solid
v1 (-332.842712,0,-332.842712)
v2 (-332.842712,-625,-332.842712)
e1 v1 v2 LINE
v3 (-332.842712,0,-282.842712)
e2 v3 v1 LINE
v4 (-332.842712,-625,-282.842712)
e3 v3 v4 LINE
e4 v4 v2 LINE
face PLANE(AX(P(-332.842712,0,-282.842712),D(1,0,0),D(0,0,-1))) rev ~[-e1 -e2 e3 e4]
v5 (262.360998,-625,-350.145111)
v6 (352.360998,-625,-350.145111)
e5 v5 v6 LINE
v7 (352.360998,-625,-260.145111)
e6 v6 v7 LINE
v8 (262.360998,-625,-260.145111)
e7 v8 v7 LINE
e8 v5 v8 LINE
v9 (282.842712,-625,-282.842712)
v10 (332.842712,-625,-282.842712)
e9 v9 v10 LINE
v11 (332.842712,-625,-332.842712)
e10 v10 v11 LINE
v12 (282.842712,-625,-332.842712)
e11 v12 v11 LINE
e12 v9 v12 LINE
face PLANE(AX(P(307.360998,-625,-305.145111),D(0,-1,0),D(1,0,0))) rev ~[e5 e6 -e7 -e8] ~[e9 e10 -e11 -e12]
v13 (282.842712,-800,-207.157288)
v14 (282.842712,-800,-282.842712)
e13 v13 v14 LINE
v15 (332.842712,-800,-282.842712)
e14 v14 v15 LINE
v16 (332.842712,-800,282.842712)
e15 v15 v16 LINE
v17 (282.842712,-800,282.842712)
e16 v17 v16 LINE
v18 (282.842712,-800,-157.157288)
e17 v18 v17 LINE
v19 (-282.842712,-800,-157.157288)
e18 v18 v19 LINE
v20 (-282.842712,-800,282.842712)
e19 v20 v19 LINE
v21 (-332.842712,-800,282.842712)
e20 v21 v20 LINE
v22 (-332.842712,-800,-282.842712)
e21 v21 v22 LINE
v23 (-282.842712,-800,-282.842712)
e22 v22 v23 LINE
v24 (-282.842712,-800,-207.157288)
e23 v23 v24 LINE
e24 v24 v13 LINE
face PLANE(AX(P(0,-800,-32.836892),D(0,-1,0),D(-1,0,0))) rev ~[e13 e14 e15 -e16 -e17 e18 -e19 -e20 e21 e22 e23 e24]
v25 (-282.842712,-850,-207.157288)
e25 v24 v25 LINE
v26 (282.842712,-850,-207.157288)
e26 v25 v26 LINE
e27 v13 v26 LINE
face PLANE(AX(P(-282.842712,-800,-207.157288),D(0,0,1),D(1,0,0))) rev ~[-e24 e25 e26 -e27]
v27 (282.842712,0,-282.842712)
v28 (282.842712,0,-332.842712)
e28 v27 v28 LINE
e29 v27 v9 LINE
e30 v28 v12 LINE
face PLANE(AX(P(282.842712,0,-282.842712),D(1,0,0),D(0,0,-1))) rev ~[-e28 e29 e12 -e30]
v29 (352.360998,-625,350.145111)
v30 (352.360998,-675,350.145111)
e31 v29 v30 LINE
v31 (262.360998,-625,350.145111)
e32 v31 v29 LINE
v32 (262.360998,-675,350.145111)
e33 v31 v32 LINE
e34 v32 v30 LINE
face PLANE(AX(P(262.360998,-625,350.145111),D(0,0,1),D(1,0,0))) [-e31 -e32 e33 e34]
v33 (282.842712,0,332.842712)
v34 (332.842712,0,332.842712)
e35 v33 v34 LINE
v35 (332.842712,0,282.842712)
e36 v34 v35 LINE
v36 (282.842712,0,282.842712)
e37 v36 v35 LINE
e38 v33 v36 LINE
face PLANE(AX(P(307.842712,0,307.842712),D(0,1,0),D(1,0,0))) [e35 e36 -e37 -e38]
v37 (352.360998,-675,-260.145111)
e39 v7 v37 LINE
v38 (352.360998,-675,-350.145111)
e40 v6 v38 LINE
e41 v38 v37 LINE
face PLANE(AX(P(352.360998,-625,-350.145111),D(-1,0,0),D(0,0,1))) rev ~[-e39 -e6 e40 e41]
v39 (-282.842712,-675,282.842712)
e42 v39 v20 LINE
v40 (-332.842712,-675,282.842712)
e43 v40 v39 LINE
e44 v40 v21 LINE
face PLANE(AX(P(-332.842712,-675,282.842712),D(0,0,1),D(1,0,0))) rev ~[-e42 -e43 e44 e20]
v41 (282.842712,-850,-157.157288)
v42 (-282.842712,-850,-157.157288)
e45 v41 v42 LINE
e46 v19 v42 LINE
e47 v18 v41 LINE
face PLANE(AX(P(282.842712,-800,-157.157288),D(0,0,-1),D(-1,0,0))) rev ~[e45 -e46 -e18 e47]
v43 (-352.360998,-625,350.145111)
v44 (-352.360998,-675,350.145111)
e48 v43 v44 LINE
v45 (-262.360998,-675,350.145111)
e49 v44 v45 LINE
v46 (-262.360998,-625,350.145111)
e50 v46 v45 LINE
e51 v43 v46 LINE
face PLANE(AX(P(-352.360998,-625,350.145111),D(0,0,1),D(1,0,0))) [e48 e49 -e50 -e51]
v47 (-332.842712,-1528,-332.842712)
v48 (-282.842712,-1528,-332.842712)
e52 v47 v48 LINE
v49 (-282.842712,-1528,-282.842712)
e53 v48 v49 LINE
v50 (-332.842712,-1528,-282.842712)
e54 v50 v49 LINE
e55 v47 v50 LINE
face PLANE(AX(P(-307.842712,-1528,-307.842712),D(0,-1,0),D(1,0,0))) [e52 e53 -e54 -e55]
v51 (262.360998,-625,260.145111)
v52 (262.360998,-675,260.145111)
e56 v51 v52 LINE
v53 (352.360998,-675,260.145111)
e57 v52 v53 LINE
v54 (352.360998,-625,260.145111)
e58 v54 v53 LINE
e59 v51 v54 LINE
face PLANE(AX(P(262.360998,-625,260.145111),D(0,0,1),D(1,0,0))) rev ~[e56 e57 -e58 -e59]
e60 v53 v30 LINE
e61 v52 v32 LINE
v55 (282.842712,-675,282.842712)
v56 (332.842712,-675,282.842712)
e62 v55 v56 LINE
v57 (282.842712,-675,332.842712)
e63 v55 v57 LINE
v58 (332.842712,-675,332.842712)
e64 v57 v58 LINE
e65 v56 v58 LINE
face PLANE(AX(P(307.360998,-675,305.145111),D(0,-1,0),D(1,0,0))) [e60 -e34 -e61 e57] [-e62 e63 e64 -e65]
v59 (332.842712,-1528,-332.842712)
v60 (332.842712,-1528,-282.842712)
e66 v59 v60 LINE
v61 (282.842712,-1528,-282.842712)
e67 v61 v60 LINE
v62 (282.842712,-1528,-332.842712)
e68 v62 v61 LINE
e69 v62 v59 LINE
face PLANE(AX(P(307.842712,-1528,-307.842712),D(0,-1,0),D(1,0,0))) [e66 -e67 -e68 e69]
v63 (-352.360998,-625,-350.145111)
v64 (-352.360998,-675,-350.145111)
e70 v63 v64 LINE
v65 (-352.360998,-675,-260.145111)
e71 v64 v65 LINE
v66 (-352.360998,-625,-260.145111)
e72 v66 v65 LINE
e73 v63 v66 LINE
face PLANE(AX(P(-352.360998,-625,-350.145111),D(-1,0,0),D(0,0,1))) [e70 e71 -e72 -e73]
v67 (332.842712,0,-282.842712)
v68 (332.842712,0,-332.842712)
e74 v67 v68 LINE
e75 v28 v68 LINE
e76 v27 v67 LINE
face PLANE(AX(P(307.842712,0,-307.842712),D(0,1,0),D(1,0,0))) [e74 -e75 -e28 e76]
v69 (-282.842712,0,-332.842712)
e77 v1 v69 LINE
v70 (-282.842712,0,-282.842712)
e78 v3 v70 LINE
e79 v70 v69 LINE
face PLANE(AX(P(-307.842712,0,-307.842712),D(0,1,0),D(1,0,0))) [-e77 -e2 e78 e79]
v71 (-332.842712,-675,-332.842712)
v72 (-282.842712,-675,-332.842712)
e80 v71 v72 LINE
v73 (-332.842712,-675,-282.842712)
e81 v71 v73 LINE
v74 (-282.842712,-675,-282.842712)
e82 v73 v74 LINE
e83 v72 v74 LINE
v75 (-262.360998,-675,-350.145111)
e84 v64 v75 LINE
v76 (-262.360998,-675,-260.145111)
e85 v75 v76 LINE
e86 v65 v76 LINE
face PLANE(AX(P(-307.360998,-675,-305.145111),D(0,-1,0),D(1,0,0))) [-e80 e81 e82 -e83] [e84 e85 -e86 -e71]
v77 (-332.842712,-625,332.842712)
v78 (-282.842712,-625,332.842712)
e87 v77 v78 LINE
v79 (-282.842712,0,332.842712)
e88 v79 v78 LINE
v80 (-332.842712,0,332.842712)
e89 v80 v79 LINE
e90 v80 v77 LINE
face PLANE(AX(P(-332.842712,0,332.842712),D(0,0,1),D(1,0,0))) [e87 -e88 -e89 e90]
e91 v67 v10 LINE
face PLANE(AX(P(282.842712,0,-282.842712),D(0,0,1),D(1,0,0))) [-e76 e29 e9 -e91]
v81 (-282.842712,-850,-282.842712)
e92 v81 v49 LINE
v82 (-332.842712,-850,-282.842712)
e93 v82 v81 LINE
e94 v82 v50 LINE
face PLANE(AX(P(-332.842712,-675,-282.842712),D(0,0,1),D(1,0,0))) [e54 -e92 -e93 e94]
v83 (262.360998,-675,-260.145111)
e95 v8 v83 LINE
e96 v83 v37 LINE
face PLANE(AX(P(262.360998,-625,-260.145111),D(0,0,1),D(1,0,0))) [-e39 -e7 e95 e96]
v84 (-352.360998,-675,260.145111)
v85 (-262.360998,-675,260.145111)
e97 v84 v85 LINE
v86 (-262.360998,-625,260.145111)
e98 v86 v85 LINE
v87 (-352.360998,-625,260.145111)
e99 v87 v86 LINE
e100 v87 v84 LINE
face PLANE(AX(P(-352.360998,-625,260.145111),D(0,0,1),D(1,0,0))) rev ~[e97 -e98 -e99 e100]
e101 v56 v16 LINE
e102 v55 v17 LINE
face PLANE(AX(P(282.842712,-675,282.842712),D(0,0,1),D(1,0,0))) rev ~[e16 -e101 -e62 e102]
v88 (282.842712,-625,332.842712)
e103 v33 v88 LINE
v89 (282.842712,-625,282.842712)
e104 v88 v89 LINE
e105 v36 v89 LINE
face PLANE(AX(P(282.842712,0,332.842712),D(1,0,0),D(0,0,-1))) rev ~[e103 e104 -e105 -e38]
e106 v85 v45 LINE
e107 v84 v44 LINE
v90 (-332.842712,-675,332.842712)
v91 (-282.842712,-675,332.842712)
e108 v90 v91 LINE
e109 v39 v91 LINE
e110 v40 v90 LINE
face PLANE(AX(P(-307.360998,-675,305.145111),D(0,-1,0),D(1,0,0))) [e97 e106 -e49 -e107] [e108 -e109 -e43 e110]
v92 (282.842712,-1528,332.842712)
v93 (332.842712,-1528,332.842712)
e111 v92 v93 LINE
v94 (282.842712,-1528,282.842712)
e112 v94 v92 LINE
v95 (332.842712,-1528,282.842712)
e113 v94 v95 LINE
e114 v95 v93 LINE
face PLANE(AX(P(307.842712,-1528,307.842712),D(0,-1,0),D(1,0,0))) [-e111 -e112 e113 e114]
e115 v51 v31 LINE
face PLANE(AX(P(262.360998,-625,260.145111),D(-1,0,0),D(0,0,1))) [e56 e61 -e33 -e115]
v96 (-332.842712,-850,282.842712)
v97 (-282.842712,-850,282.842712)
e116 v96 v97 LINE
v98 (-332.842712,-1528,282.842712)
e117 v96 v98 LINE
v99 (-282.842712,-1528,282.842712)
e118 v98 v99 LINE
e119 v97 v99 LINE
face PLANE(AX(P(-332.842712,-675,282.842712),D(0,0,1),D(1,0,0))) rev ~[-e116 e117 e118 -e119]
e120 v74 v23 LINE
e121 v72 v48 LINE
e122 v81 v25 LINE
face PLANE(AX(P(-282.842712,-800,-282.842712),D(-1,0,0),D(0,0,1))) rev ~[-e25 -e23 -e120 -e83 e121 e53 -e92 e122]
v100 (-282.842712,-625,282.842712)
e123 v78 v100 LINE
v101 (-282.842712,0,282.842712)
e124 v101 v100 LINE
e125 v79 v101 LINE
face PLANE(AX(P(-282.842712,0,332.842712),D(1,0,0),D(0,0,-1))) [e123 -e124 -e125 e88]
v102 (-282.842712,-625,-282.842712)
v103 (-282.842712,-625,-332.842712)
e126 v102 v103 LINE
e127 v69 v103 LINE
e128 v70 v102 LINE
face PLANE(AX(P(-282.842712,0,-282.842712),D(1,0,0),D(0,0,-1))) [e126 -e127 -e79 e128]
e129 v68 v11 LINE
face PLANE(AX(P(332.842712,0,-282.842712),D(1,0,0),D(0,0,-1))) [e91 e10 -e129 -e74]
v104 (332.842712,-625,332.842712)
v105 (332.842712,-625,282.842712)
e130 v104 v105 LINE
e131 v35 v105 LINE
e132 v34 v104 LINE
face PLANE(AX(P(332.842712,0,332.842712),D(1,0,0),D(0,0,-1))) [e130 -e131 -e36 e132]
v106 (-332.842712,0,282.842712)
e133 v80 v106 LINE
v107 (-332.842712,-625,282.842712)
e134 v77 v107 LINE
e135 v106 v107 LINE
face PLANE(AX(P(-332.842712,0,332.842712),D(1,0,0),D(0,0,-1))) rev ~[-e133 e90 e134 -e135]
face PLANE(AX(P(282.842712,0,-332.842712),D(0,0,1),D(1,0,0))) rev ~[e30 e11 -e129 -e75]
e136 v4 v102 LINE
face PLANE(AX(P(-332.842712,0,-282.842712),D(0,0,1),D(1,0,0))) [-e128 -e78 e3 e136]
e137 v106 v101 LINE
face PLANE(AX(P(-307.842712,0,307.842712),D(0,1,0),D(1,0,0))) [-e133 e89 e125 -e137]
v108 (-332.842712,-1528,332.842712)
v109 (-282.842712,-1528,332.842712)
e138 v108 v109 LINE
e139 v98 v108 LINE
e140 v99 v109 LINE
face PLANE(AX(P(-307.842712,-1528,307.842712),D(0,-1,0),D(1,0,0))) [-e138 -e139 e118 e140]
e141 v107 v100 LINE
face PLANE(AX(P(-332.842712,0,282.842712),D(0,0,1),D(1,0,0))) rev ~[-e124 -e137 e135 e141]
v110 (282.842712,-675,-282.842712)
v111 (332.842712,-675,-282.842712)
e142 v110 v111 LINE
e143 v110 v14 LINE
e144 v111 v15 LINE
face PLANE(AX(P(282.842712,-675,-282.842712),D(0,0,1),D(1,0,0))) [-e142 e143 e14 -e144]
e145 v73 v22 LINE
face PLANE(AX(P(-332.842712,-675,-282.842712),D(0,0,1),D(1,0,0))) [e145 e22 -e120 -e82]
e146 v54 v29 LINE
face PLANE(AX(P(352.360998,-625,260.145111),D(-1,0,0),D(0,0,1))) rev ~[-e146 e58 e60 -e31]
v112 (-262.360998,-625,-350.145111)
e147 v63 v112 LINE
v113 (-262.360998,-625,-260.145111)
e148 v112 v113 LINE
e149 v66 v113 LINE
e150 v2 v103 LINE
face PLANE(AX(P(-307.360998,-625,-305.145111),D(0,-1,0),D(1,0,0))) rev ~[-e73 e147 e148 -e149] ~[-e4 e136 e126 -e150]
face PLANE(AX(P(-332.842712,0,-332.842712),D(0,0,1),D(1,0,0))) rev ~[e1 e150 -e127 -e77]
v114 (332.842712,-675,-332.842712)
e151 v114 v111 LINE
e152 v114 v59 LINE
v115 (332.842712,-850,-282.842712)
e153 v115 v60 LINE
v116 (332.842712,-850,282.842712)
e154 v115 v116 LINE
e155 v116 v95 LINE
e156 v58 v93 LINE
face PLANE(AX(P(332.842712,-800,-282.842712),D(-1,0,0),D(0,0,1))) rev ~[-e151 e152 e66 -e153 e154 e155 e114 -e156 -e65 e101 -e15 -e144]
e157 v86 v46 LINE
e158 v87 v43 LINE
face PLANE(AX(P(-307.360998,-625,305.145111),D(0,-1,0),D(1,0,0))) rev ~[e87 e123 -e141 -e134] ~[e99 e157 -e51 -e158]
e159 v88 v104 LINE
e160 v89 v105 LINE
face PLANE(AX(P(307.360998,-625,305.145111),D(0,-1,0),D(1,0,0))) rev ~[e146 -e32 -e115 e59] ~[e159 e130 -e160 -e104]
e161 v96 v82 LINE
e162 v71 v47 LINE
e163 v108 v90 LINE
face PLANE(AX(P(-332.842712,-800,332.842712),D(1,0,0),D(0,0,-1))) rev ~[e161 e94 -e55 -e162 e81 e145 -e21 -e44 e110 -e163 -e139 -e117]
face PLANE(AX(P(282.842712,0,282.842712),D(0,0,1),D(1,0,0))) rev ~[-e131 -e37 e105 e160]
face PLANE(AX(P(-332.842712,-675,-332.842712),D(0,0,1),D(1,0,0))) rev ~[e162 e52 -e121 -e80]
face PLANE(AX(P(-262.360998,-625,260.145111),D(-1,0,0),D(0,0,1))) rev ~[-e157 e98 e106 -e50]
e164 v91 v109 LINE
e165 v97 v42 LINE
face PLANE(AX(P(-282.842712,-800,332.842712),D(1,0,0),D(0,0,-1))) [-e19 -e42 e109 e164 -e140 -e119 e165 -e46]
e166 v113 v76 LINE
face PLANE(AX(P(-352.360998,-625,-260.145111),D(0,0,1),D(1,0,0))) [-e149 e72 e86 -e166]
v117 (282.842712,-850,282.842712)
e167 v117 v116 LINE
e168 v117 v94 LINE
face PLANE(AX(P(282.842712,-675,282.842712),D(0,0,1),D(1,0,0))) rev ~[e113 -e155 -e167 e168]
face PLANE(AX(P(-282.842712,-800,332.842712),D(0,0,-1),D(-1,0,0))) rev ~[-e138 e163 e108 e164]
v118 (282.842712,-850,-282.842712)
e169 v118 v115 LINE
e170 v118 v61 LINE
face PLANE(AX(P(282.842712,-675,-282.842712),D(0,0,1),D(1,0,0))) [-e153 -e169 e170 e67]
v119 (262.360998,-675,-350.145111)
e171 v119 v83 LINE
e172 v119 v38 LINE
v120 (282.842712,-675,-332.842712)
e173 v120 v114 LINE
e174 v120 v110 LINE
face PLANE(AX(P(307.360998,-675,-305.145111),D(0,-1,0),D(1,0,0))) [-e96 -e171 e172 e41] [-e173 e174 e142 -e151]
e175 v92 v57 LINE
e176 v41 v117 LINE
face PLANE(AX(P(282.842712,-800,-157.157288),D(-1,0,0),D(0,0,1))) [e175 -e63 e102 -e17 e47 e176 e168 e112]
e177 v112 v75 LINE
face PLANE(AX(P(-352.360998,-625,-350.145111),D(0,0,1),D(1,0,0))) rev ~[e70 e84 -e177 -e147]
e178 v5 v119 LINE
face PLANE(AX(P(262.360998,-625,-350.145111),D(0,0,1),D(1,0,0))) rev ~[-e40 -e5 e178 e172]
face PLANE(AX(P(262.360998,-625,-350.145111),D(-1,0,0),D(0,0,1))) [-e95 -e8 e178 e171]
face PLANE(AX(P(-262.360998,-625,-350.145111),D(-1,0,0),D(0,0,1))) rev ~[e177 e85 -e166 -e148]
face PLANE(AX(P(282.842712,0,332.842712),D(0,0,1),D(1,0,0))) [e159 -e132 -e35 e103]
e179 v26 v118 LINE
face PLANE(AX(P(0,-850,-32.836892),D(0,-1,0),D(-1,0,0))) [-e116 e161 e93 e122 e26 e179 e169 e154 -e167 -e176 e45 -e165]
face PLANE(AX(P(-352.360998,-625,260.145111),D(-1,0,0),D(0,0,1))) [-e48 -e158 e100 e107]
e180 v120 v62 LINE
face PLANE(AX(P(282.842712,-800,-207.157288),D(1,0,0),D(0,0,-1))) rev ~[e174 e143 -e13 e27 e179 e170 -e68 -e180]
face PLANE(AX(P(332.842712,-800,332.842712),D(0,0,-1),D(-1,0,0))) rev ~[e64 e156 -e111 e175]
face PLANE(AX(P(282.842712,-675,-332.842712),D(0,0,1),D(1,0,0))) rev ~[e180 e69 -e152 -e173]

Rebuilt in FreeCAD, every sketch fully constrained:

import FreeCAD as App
import Part
import Sketcher


def add_polygon(sketch, points):
    """Adds a closed chain of lines whose ends are joined by coincident constraints."""
    first, n = sketch.GeometryCount, len(points)
    for a, b in zip(points, points[1:] + points[:1]):
        sketch.addGeometry(Part.LineSegment(App.Vector(*a, 0), App.Vector(*b, 0)), False)
    for i in range(n):
        sketch.addConstraint(Sketcher.Constraint("Coincident", first + i, 2, first + (i + 1) % n, 1))

doc = App.newDocument("Part")
body = doc.addObject("PartDesign::Body", "Body")

sketch1 = body.newObject("Sketcher::SketchObject", "Sketch")
sketch1.AttachmentSupport = (doc.getObject("XZ_Plane"), [""])
sketch1.MapMode = "FlatFace"
add_polygon(sketch1, [(-333, -333), (-333, -283), (-283, -283), (-283, -333)])
sketch1.addConstraint([
    Sketcher.Constraint("Vertical", 0),
    Sketcher.Constraint("Horizontal", 1),
    Sketcher.Constraint("Vertical", 2),
    Sketcher.Constraint("Horizontal", 3),
    Sketcher.Constraint("Equal", 3, 0),
    Sketcher.Constraint("DistanceX", 1, 1, 1, 2, 50.0),
    Sketcher.Constraint("DistanceX", 0, 2, -1, 1, 332.842712),
    Sketcher.Constraint("DistanceY", 0, 2, -1, 1, 282.842712),
])
pad1 = body.newObject("PartDesign::Pad", "Pad")
pad1.Profile = sketch1
pad1.Length = 625
body2 = doc.addObject("PartDesign::Body", "Body001")

sketch2 = body2.newObject("Sketcher::SketchObject", "Sketch001")
sketch2.AttachmentSupport = (doc.getObject("XZ_Plane001"), [""])
sketch2.MapMode = "FlatFace"
add_polygon(sketch2, [(283, -333), (283, -283), (333, -283), (333, -333)])
sketch2.addConstraint([
    Sketcher.Constraint("Vertical", 0),
    Sketcher.Constraint("Horizontal", 1),
    Sketcher.Constraint("Vertical", 2),
    Sketcher.Constraint("Horizontal", 3),
    Sketcher.Constraint("Equal", 3, 0),
    Sketcher.Constraint("DistanceX", 1, 1, 1, 2, 50.0),
    Sketcher.Constraint("DistanceX", -1, 1, 0, 2, 282.842712),
    Sketcher.Constraint("DistanceY", 0, 2, -1, 1, 282.842712),
])
pad2 = body2.newObject("PartDesign::Pad", "Pad001")
pad2.Profile = sketch2
pad2.Length = 625
body3 = doc.addObject("PartDesign::Body", "Body002")

sketch3 = body3.newObject("Sketcher::SketchObject", "Sketch002")
sketch3.AttachmentSupport = (doc.getObject("XZ_Plane002"), [""])
sketch3.MapMode = "FlatFace"
add_polygon(sketch3, [(-333, 283), (-333, 333), (-283, 333), (-283, 283)])
sketch3.addConstraint([
    Sketcher.Constraint("Vertical", 0),
    Sketcher.Constraint("Horizontal", 1),
    Sketcher.Constraint("Vertical", 2),
    Sketcher.Constraint("Horizontal", 3),
    Sketcher.Constraint("Equal", 3, 0),
    Sketcher.Constraint("DistanceX", 1, 1, 1, 2, 50.0),
    Sketcher.Constraint("DistanceX", 0, 2, -1, 1, 332.842712),
    Sketcher.Constraint("DistanceY", -1, 1, 0, 2, 332.842712),
])
pad3 = body3.newObject("PartDesign::Pad", "Pad002")
pad3.Profile = sketch3
pad3.Length = 625
body4 = doc.addObject("PartDesign::Body", "Body003")

sketch4 = body4.newObject("Sketcher::SketchObject", "Sketch003")
sketch4.AttachmentSupport = (doc.getObject("XZ_Plane003"), [""])
sketch4.MapMode = "FlatFace"
add_polygon(sketch4, [(283, 283), (283, 333), (333, 333), (333, 283)])
sketch4.addConstraint([
    Sketcher.Constraint("Vertical", 0),
    Sketcher.Constraint("Horizontal", 1),
    Sketcher.Constraint("Vertical", 2),
    Sketcher.Constraint("Horizontal", 3),
    Sketcher.Constraint("Equal", 3, 0),
    Sketcher.Constraint("DistanceX", 1, 1, 1, 2, 50.0),
    Sketcher.Constraint("DistanceX", -1, 1, 0, 2, 282.842712),
    Sketcher.Constraint("DistanceY", -1, 1, 0, 2, 332.842712),
])
pad4 = body4.newObject("PartDesign::Pad", "Pad003")
pad4.Profile = sketch4
pad4.Length = 625
body.AllowCompound = True
doc.recompute()

boolean = body.newObject("PartDesign::Boolean", "Boolean")
boolean.Type = "Fuse"
boolean.addObjects([body2])
doc.recompute()

boolean2 = body.newObject("PartDesign::Boolean", "Boolean001")
boolean2.Type = "Fuse"
boolean2.addObjects([body3])
doc.recompute()

boolean3 = body.newObject("PartDesign::Boolean", "Boolean002")
boolean3.Type = "Fuse"
boolean3.addObjects([body4])

sketch5 = body.newObject("Sketcher::SketchObject", "Sketch004")
sketch5.AttachmentSupport = (doc.getObject("XZ_Plane"), [""])
sketch5.MapMode = "FlatFace"
sketch5.AttachmentOffset = App.Placement(App.Vector(0, 0, 625), App.Rotation())
add_polygon(sketch5, [(-352, 350), (-352, 260), (-262, 260), (-262, 350)])
add_polygon(sketch5, [(262, 350), (262, 260), (352, 260), (352, 350)])
add_polygon(sketch5, [(262, -260), (262, -350), (352, -350), (352, -260)])
add_polygon(sketch5, [(-352, -260), (-352, -350), (-262, -350), (-262, -260)])
sketch5.addConstraint([
    Sketcher.Constraint("Vertical", 0),
    Sketcher.Constraint("Horizontal", 1),
    Sketcher.Constraint("Vertical", 2),
    Sketcher.Constraint("Horizontal", 3),
    Sketcher.Constraint("Vertical", 4),
    Sketcher.Constraint("Horizontal", 5),
    Sketcher.Constraint("Vertical", 6),
    Sketcher.Constraint("Horizontal", 7),
    Sketcher.Constraint("Vertical", 8),
    Sketcher.Constraint("Horizontal", 9),
    Sketcher.Constraint("Vertical", 10),
    Sketcher.Constraint("Horizontal", 11),
    Sketcher.Constraint("Vertical", 12),
    Sketcher.Constraint("Horizontal", 13),
    Sketcher.Constraint("Vertical", 14),
    Sketcher.Constraint("Horizontal", 15),
    Sketcher.Constraint("Symmetric", 2, 2, 8, 2, -1, 1),
    Sketcher.Constraint("Symmetric", 0, 2, 10, 2, -1, 1),
    Sketcher.Constraint("Symmetric", 6, 2, 12, 2, -1, 1),
    Sketcher.Constraint("Symmetric", 4, 2, 14, 2, -1, 1),
    Sketcher.Constraint("Symmetric", 1, 2, 4, 2, -2),
    Sketcher.Constraint("Symmetric", 3, 2, 6, 2, -2),
    Sketcher.Constraint("Equal", 15, 0),
    Sketcher.Constraint("DistanceX", 1, 1, 1, 2, 90.0),
    Sketcher.Constraint("DistanceY", -1, 1, 0, 2, 260.145111),
    Sketcher.Constraint("DistanceX", 0, 2, -1, 1, 352.360998),
])
pad5 = body.newObject("PartDesign::Pad", "Pad004")
pad5.Profile = sketch5
pad5.Length = 50

sketch6 = body.newObject("Sketcher::SketchObject", "Sketch005")
sketch6.AttachmentSupport = (doc.getObject("XZ_Plane"), [""])
sketch6.MapMode = "FlatFace"
sketch6.AttachmentOffset = App.Placement(App.Vector(0, 0, 675), App.Rotation())
add_polygon(sketch6, [(-333, 333), (-333, 283), (-283, 283), (-283, 333)])
add_polygon(sketch6, [(-333, -283), (-333, -333), (-283, -333), (-283, -283)])
add_polygon(sketch6, [(283, 333), (283, 283), (333, 283), (333, 333)])
add_polygon(sketch6, [(283, -283), (283, -333), (333, -333), (333, -283)])
sketch6.addConstraint([
    Sketcher.Constraint("Vertical", 0),
    Sketcher.Constraint("Horizontal", 1),
    Sketcher.Constraint("Vertical", 2),
    Sketcher.Constraint("Horizontal", 3),
    Sketcher.Constraint("Vertical", 4),
    Sketcher.Constraint("Horizontal", 5),
    Sketcher.Constraint("Vertical", 6),
    Sketcher.Constraint("Horizontal", 7),
    Sketcher.Constraint("Vertical", 8),
    Sketcher.Constraint("Horizontal", 9),
    Sketcher.Constraint("Vertical", 10),
    Sketcher.Constraint("Horizontal", 11),
    Sketcher.Constraint("Vertical", 12),
    Sketcher.Constraint("Horizontal", 13),
    Sketcher.Constraint("Vertical", 14),
    Sketcher.Constraint("Horizontal", 15),
    Sketcher.Constraint("Symmetric", 6, 2, 8, 2, -1, 1),
    Sketcher.Constraint("Symmetric", 4, 2, 10, 2, -1, 1),
    Sketcher.Constraint("Symmetric", 2, 2, 12, 2, -1, 1),
    Sketcher.Constraint("Symmetric", 0, 2, 14, 2, -1, 1),
    Sketcher.Constraint("Symmetric", 1, 2, 8, 2, -2),
    Sketcher.Constraint("Symmetric", 3, 2, 10, 2, -2),
    Sketcher.Constraint("Equal", 15, 0),
    Sketcher.Constraint("DistanceX", 1, 1, 1, 2, 50.0),
    Sketcher.Constraint("DistanceX", 0, 2, -1, 1, 332.842712),
    Sketcher.Constraint("DistanceY", -1, 1, 0, 2, 282.842712),
])
pad6 = body.newObject("PartDesign::Pad", "Pad005")
pad6.Profile = sketch6
pad6.Length = 853

sketch7 = body.newObject("Sketcher::SketchObject", "Sketch006")
sketch7.AttachmentSupport = (doc.getObject("XZ_Plane"), [""])
sketch7.MapMode = "FlatFace"
sketch7.AttachmentOffset = App.Placement(App.Vector(0, 0, 800), App.Rotation())
add_polygon(sketch7, [(333, 333), (333, -283), (283, -283), (283, -207), (-283, -207), (-283, -283), (-333, -283), (-333, 333), (-283, 333), (-283, -157), (283, -157), (283, 333)])
sketch7.addConstraint([
    Sketcher.Constraint("Vertical", 0),
    Sketcher.Constraint("Horizontal", 1),
    Sketcher.Constraint("Vertical", 2),
    Sketcher.Constraint("Horizontal", 3),
    Sketcher.Constraint("Vertical", 4),
    Sketcher.Constraint("Horizontal", 5),
    Sketcher.Constraint("Vertical", 6),
    Sketcher.Constraint("Horizontal", 7),
    Sketcher.Constraint("Vertical", 8),
    Sketcher.Constraint("Horizontal", 9),
    Sketcher.Constraint("Vertical", 10),
    Sketcher.Constraint("Horizontal", 11),
    Sketcher.Constraint("Symmetric", 1, 2, 4, 2, -2),
    Sketcher.Constraint("Symmetric", 7, 2, 10, 2, -2),
    Sketcher.Constraint("Vertical", 4, 2, 7, 2),
    Sketcher.Constraint("Equal", 1, 5),
    Sketcher.Constraint("DistanceX", 1, 2, 1, 1, 50.0),
    Sketcher.Constraint("DistanceY", 8, 2, 8, 1, 490.0),
    Sketcher.Constraint("DistanceY", 3, 2, 6, 2, 540.0),
    Sketcher.Constraint("DistanceX", 3, 2, 3, 1, 565.685425),
    Sketcher.Constraint("DistanceY", 0, 2, 0, 1, 615.685425),
    Sketcher.Constraint("DistanceY", 0, 2, -1, 1, 282.842712),
])
pad7 = body.newObject("PartDesign::Pad", "Pad006")
pad7.Profile = sketch7
pad7.Length = 50

doc.recompute()
